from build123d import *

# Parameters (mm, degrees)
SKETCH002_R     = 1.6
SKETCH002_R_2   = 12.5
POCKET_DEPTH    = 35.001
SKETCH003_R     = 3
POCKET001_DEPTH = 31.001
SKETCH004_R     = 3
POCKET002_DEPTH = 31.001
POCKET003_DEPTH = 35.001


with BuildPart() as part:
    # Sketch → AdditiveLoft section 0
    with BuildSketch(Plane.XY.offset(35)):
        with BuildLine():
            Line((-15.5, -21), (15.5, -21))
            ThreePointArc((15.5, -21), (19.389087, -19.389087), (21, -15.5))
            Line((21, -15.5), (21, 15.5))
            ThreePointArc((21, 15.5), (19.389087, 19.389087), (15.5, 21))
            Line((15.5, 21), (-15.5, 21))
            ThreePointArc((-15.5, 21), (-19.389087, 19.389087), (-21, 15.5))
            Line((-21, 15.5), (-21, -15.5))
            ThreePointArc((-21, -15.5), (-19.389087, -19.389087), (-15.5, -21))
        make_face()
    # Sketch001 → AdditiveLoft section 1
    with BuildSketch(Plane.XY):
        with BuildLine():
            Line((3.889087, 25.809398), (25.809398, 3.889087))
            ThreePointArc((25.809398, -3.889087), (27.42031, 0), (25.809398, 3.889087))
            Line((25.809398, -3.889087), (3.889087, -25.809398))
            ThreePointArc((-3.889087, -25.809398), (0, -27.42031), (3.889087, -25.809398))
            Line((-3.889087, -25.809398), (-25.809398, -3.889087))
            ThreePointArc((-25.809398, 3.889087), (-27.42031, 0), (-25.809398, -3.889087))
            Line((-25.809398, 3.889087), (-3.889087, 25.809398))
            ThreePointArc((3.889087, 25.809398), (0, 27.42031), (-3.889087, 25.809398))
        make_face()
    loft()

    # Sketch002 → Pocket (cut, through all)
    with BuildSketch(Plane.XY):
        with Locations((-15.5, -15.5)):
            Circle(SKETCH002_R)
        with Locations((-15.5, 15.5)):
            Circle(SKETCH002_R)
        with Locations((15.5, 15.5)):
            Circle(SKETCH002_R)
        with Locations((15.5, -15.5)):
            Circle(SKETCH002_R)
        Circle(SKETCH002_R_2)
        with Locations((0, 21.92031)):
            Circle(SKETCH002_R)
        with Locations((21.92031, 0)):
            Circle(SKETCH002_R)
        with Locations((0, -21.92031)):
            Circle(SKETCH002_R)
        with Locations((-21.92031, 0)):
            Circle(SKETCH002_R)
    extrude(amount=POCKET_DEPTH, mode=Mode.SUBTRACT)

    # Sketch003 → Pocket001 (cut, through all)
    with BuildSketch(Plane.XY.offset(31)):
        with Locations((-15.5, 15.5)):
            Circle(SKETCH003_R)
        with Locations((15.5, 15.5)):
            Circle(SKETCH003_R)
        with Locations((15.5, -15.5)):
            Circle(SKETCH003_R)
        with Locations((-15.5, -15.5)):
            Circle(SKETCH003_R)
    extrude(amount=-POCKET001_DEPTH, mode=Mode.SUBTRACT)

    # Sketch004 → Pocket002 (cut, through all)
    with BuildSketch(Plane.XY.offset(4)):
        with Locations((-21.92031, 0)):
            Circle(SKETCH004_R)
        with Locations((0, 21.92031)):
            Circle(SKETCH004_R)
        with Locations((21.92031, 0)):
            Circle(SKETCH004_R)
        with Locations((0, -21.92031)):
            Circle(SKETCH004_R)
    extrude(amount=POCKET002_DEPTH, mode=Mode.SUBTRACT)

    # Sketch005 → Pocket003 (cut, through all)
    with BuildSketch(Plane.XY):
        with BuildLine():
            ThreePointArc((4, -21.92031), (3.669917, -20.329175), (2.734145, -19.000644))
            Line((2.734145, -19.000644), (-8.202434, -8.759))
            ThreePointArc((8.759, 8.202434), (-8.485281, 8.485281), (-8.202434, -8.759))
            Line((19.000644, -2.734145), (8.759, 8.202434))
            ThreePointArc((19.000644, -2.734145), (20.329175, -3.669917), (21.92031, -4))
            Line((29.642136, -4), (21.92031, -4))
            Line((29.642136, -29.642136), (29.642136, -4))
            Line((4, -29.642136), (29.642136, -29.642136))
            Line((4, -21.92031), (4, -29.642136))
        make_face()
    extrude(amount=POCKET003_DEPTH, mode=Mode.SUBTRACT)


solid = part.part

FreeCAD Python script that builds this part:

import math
import FreeCAD as App
import Part
import Sketcher
from FreeCAD import Vector

doc = App.newDocument("Part")
body = doc.addObject("PartDesign::Body", "Body")

# Sketch on XY plane
sketch1 = doc.addObject("Sketcher::SketchObject", "Sketch")
body.addObject(sketch1)
sketch1.AttachmentSupport = (doc.XY_Plane, [""])
sketch1.MapMode = "FlatFace"
sketch1.AttachmentOffset = App.Placement(Vector(0, 0, 35), App.Rotation())
sketch1.addGeometry(Part.LineSegment(Vector(-16, -21, 0), Vector(16, -21, 0)), False)
sketch1.addGeometry(Part.ArcOfCircle(Part.Circle(Vector(15, -15, 0), Vector(0, 0, 1), 6), math.radians(-90), math.radians(0)), False)
sketch1.addGeometry(Part.LineSegment(Vector(21, -16, 0), Vector(21, 16, 0)), False)
sketch1.addGeometry(Part.ArcOfCircle(Part.Circle(Vector(15, 15, 0), Vector(0, 0, 1), 6), math.radians(0), math.radians(90)), False)
sketch1.addGeometry(Part.LineSegment(Vector(16, 21, 0), Vector(-16, 21, 0)), False)
sketch1.addGeometry(Part.ArcOfCircle(Part.Circle(Vector(-15, 15, 0), Vector(0, 0, 1), 6), math.radians(90), math.radians(180)), False)
sketch1.addGeometry(Part.LineSegment(Vector(-21, 16, 0), Vector(-21, -16, 0)), False)
sketch1.addGeometry(Part.ArcOfCircle(Part.Circle(Vector(-15, -15, 0), Vector(0, 0, 1), 6), math.radians(-180), math.radians(-90)), False)
sketch1.addConstraint(Sketcher.Constraint("Tangent", 0, 2, 1, 1))
sketch1.addConstraint(Sketcher.Constraint("Tangent", 1, 2, 2, 1))
sketch1.addConstraint(Sketcher.Constraint("Tangent", 2, 2, 3, 1))
sketch1.addConstraint(Sketcher.Constraint("Tangent", 3, 2, 4, 1))
sketch1.addConstraint(Sketcher.Constraint("Tangent", 4, 2, 5, 1))
sketch1.addConstraint(Sketcher.Constraint("Tangent", 5, 2, 6, 1))
sketch1.addConstraint(Sketcher.Constraint("Tangent", 6, 2, 7, 1))
sketch1.addConstraint(Sketcher.Constraint("Tangent", 7, 2, 0, 1))
sketch1.addConstraint(Sketcher.Constraint("Horizontal", 0))
sketch1.addConstraint(Sketcher.Constraint("Vertical", 2))
sketch1.addConstraint(Sketcher.Constraint("Horizontal", 4))
sketch1.addConstraint(Sketcher.Constraint("Vertical", 6))
sketch1.addConstraint(Sketcher.Constraint("Equal", 1, 3))
sketch1.addConstraint(Sketcher.Constraint("Equal", 3, 5))
sketch1.addConstraint(Sketcher.Constraint("Equal", 5, 7))
sketch1.addConstraint(Sketcher.Constraint("Symmetric", 1, 3, 5, 3, -1, 1))
sketch1.addConstraint(Sketcher.Constraint("Equal", 4, 2))
sketch1.addConstraint(Sketcher.Constraint("Radius", 1, 5.500001))
sketch1.addConstraint(Sketcher.Constraint("DistanceX", 0, 1, 0, 2, 31.0))

# Sketch on XY plane
sketch2 = doc.addObject("Sketcher::SketchObject", "Sketch001")
body.addObject(sketch2)
sketch2.AttachmentSupport = (doc.XY_Plane, [""])
sketch2.MapMode = "FlatFace"
sketch2.addGeometry(Part.LineSegment(Vector(26, 4, 0), Vector(4, 26, 0)), False)
sketch2.addGeometry(Part.ArcOfCircle(Part.Circle(Vector(0, 22, 0), Vector(0, 0, 1), 6), math.radians(45), math.radians(135)), False)
sketch2.addGeometry(Part.LineSegment(Vector(-4, 26, 0), Vector(-26, 4, 0)), False)
sketch2.addGeometry(Part.ArcOfCircle(Part.Circle(Vector(-22, 0, 0), Vector(0, 0, 1), 6), math.radians(135), math.radians(225)), False)
sketch2.addGeometry(Part.LineSegment(Vector(-26, -4, 0), Vector(-4, -26, 0)), False)
sketch2.addGeometry(Part.ArcOfCircle(Part.Circle(Vector(0, -22, 0), Vector(0, 0, 1), 6), math.radians(-135), math.radians(-45)), False)
sketch2.addGeometry(Part.LineSegment(Vector(4, -26, 0), Vector(26, -4, 0)), False)
sketch2.addGeometry(Part.ArcOfCircle(Part.Circle(Vector(22, 0, 0), Vector(0, 0, 1), 6), math.radians(-45), math.radians(45)), False)
sketch2.addConstraint(Sketcher.Constraint("Tangent", 0, 2, 1, 1))
sketch2.addConstraint(Sketcher.Constraint("Tangent", 1, 2, 2, 1))
sketch2.addConstraint(Sketcher.Constraint("Tangent", 2, 2, 3, 1))
sketch2.addConstraint(Sketcher.Constraint("Tangent", 3, 2, 4, 1))
sketch2.addConstraint(Sketcher.Constraint("Tangent", 4, 2, 5, 1))
sketch2.addConstraint(Sketcher.Constraint("Tangent", 5, 2, 6, 1))
sketch2.addConstraint(Sketcher.Constraint("Tangent", 6, 2, 7, 1))
sketch2.addConstraint(Sketcher.Constraint("Tangent", 7, 2, 0, 1))
sketch2.addConstraint(Sketcher.Constraint("Equal", 1, 3))
sketch2.addConstraint(Sketcher.Constraint("Equal", 3, 5))
sketch2.addConstraint(Sketcher.Constraint("Equal", 5, 7))
sketch2.addConstraint(Sketcher.Constraint("Symmetric", 1, 3, 5, 3, -1, 1))
sketch2.addConstraint(Sketcher.Constraint("Symmetric", 3, 3, 7, 3, -1, 1))
sketch2.addConstraint(Sketcher.Constraint("Symmetric", 0, 2, 1, 2, -2))
sketch2.addConstraint(Sketcher.Constraint("Perpendicular", 0, 2))
sketch2.addConstraint(Sketcher.Constraint("Radius", 1, 5.500001))
sketch2.addConstraint(Sketcher.Constraint("Distance", 0, 31.000001))

additiveloft = doc.addObject("PartDesign::AdditiveLoft", "AdditiveLoft")
body.addObject(additiveloft)
additiveloft.Profile = sketch1
additiveloft.Sections = [sketch2]

# Sketch on XY plane
sketch3 = doc.addObject("Sketcher::SketchObject", "Sketch002")
body.addObject(sketch3)
sketch3.AttachmentSupport = (doc.XY_Plane, [""])
sketch3.MapMode = "FlatFace"
sketch3.addGeometry(Part.Circle(Vector(-15.5, -15.5, 0), Vector(0, 0, 1), 1.6), False)
sketch3.addGeometry(Part.Circle(Vector(-15.5, 15.5, 0), Vector(0, 0, 1), 1.6), False)
sketch3.addGeometry(Part.Circle(Vector(15.5, 15.5, 0), Vector(0, 0, 1), 1.6), False)
sketch3.addGeometry(Part.Circle(Vector(15.5, -15.5, 0), Vector(0, 0, 1), 1.6), False)
sketch3.addGeometry(Part.Circle(Vector(0, 0, 0), Vector(0, 0, 1), 12.5), False)
sketch3.addGeometry(Part.Circle(Vector(0, 21.9, 0), Vector(0, 0, 1), 1.6), False)
sketch3.addGeometry(Part.Circle(Vector(21.9, 0, 0), Vector(0, 0, 1), 1.6), False)
sketch3.addGeometry(Part.Circle(Vector(0, -21.9, 0), Vector(0, 0, 1), 1.6), False)
sketch3.addGeometry(Part.Circle(Vector(-21.9, 0, 0), Vector(0, 0, 1), 1.6), False)
sketch3.addConstraint(Sketcher.Constraint("Coincident", 4, 3, -1, 1))
sketch3.addConstraint(Sketcher.Constraint("Equal", 0, 1))
sketch3.addConstraint(Sketcher.Constraint("Equal", 1, 2))
sketch3.addConstraint(Sketcher.Constraint("Equal", 2, 3))
sketch3.addConstraint(Sketcher.Constraint("Equal", 3, 5))
sketch3.addConstraint(Sketcher.Constraint("Equal", 5, 6))
sketch3.addConstraint(Sketcher.Constraint("Equal", 6, 7))
sketch3.addConstraint(Sketcher.Constraint("Equal", 7, 8))
sketch3.addConstraint(Sketcher.Constraint("Symmetric", 0, 3, 2, 3, -1, 1))
sketch3.addConstraint(Sketcher.Constraint("Symmetric", 1, 3, 3, 3, -1, 1))
sketch3.addConstraint(Sketcher.Constraint("Symmetric", 5, 3, 7, 3, -1, 1))
sketch3.addConstraint(Sketcher.Constraint("Symmetric", 6, 3, 8, 3, -1, 1))
sketch3.addConstraint(Sketcher.Constraint("Symmetric", 1, 3, 2, 3, -2))
sketch3.addConstraint(Sketcher.Constraint("PointOnObject", 5, 3, -2))
sketch3.addConstraint(Sketcher.Constraint("PointOnObject", 6, 3, -1))
sketch3.addConstraint(Sketcher.Constraint("Diameter", 4, 25.0))
sketch3.addConstraint(Sketcher.Constraint("Diameter", 0, 3.2))
sketch3.addConstraint(Sketcher.Constraint("DistanceY", 0, 3, 1, 3, 31.0))
sketch3.addConstraint(Sketcher.Constraint("DistanceX", 1, 3, 2, 3, 31.0))
sketch3.addConstraint(Sketcher.Constraint("DistanceY", -1, 1, 5, 3, 21.92031))
sketch3.addConstraint(Sketcher.Constraint("DistanceX", -1, 1, 6, 3, 21.92031))
pocket1 = doc.addObject("PartDesign::Pocket", "Pocket")
body.addObject(pocket1)
pocket1.Profile = sketch3
pocket1.Type = "ThroughAll"
pocket1.Reversed = True

# Sketch on XY plane
sketch4 = doc.addObject("Sketcher::SketchObject", "Sketch003")
body.addObject(sketch4)
sketch4.AttachmentSupport = (doc.XY_Plane, [""])
sketch4.MapMode = "FlatFace"
sketch4.AttachmentOffset = App.Placement(Vector(0, 0, 31), App.Rotation())
sketch4.addGeometry(Part.Circle(Vector(-15.5, 15.5, 0), Vector(0, 0, 1), 3), False)
sketch4.addGeometry(Part.Circle(Vector(15.5, 15.5, 0), Vector(0, 0, 1), 3), False)
sketch4.addGeometry(Part.Circle(Vector(15.5, -15.5, 0), Vector(0, 0, 1), 3), False)
sketch4.addGeometry(Part.Circle(Vector(-15.5, -15.5, 0), Vector(0, 0, 1), 3), False)
sketch4.addConstraint(Sketcher.Constraint("Equal", 0, 1))
sketch4.addConstraint(Sketcher.Constraint("Equal", 1, 2))
sketch4.addConstraint(Sketcher.Constraint("Equal", 2, 3))
sketch4.addConstraint(Sketcher.Constraint("Symmetric", 0, 3, 2, 3, -1, 1))
sketch4.addConstraint(Sketcher.Constraint("Symmetric", 1, 3, 3, 3, -1, 1))
sketch4.addConstraint(Sketcher.Constraint("Symmetric", 0, 3, 1, 3, -2))
sketch4.addConstraint(Sketcher.Constraint("Diameter", 0, 6.0))
sketch4.addConstraint(Sketcher.Constraint("DistanceX", 0, 3, 1, 3, 31.0))
sketch4.addConstraint(Sketcher.Constraint("DistanceY", 2, 3, 1, 3, 31.0))
pocket2 = doc.addObject("PartDesign::Pocket", "Pocket001")
body.addObject(pocket2)
pocket2.Profile = sketch4
pocket2.Type = "ThroughAll"

# Sketch on XY plane
sketch5 = doc.addObject("Sketcher::SketchObject", "Sketch004")
body.addObject(sketch5)
sketch5.AttachmentSupport = (doc.XY_Plane, [""])
sketch5.MapMode = "FlatFace"
sketch5.AttachmentOffset = App.Placement(Vector(0, 0, 4), App.Rotation())
sketch5.addGeometry(Part.Circle(Vector(-21.9, 0, 0), Vector(0, 0, 1), 3), False)
sketch5.addGeometry(Part.Circle(Vector(0, 21.9, 0), Vector(0, 0, 1), 3), False)
sketch5.addGeometry(Part.Circle(Vector(21.9, 0, 0), Vector(0, 0, 1), 3), False)
sketch5.addGeometry(Part.Circle(Vector(0, -21.9, 0), Vector(0, 0, 1), 3), False)
sketch5.addConstraint(Sketcher.Constraint("Equal", 0, 1))
sketch5.addConstraint(Sketcher.Constraint("Equal", 1, 2))
sketch5.addConstraint(Sketcher.Constraint("Equal", 2, 3))
sketch5.addConstraint(Sketcher.Constraint("Symmetric", 0, 3, 2, 3, -1, 1))
sketch5.addConstraint(Sketcher.Constraint("Symmetric", 1, 3, 3, 3, -1, 1))
sketch5.addConstraint(Sketcher.Constraint("PointOnObject", 0, 3, -1))
sketch5.addConstraint(Sketcher.Constraint("PointOnObject", 1, 3, -2))
sketch5.addConstraint(Sketcher.Constraint("Diameter", 0, 6.0))
sketch5.addConstraint(Sketcher.Constraint("DistanceX", 0, 3, -1, 1, 21.92031))
sketch5.addConstraint(Sketcher.Constraint("DistanceY", -1, 1, 1, 3, 21.92031))
pocket3 = doc.addObject("PartDesign::Pocket", "Pocket002")
body.addObject(pocket3)
pocket3.Profile = sketch5
pocket3.Type = "ThroughAll"
pocket3.Reversed = True

# Sketch on XY plane
sketch6 = doc.addObject("Sketcher::SketchObject", "Sketch005")
body.addObject(sketch6)
sketch6.AttachmentSupport = (doc.XY_Plane, [""])
sketch6.MapMode = "FlatFace"
sketch6.addGeometry(Part.ArcOfCircle(Part.Circle(Vector(0, -21.9, 0), Vector(0, 0, 1), 4), math.radians(0), math.radians(47)), False)
sketch6.addGeometry(Part.LineSegment(Vector(4, -21.9, 0), Vector(4, -29.6, 0)), False)
sketch6.addGeometry(Part.LineSegment(Vector(4, -29.6, 0), Vector(29.6, -29.6, 0)), False)
sketch6.addGeometry(Part.LineSegment(Vector(29.6, -29.6, 0), Vector(29.6, -4, 0)), False)
sketch6.addGeometry(Part.LineSegment(Vector(29.6, -4, 0), Vector(21.9, -4, 0)), False)
sketch6.addGeometry(Part.ArcOfCircle(Part.Circle(Vector(21.9, 0, 0), Vector(0, 0, 1), 4), math.radians(-137), math.radians(-90)), False)
sketch6.addGeometry(Part.LineSegment(Vector(19, -2.7, 0), Vector(8.8, 8.2, 0)), False)
sketch6.addGeometry(Part.ArcOfCircle(Part.Circle(Vector(0, 0, 0), Vector(0, 0, 1), 12), math.radians(43), math.radians(227)), False)
sketch6.addGeometry(Part.LineSegment(Vector(-8.2, -8.8, 0), Vector(2.7, -19, 0)), False)
sketch6.addConstraint(Sketcher.Constraint("Tangent", 0, 1, 1, 1))
sketch6.addConstraint(Sketcher.Constraint("Coincident", 1, 2, 2, 1))
sketch6.addConstraint(Sketcher.Constraint("Coincident", 2, 2, 3, 1))
sketch6.addConstraint(Sketcher.Constraint("Coincident", 3, 2, 4, 1))
sketch6.addConstraint(Sketcher.Constraint("Tangent", 4, 2, 5, 2))
sketch6.addConstraint(Sketcher.Constraint("Tangent", 5, 1, 6, 1))
sketch6.addConstraint(Sketcher.Constraint("Tangent", 6, 2, 7, 1))
sketch6.addConstraint(Sketcher.Constraint("Tangent", 7, 2, 8, 1))
sketch6.addConstraint(Sketcher.Constraint("Tangent", 8, 2, 0, 2))
sketch6.addConstraint(Sketcher.Constraint("Vertical", 1))
sketch6.addConstraint(Sketcher.Constraint("Horizontal", 2))
sketch6.addConstraint(Sketcher.Constraint("Vertical", 3))
sketch6.addConstraint(Sketcher.Constraint("Horizontal", 4))
sketch6.addConstraint(Sketcher.Constraint("Coincident", 7, 3, -1, 1))
sketch6.addConstraint(Sketcher.Constraint("Equal", 0, 5))
sketch6.addConstraint(Sketcher.Constraint("Equal", 4, 1))
sketch6.addConstraint(Sketcher.Constraint("Equal", 2, 3))
sketch6.addConstraint(Sketcher.Constraint("Equal", 6, 8))
sketch6.addConstraint(Sketcher.Constraint("Radius", 7, 12.0))
sketch6.addConstraint(Sketcher.Constraint("DistanceX", -1, 1, 0, 1, 4.0))
sketch6.addConstraint(Sketcher.Constraint("DistanceX", -1, 1, 6, 2, 8.759))
sketch6.addConstraint(Sketcher.Constraint("Radius", 0, 3.999997))
sketch6.addConstraint(Sketcher.Constraint("DistanceX", 2, 1, 2, 2, 25.642136))
pocket4 = doc.addObject("PartDesign::Pocket", "Pocket003")
body.addObject(pocket4)
pocket4.Profile = sketch6
pocket4.Type = "ThroughAll"
pocket4.Reversed = True

doc.recompute()
